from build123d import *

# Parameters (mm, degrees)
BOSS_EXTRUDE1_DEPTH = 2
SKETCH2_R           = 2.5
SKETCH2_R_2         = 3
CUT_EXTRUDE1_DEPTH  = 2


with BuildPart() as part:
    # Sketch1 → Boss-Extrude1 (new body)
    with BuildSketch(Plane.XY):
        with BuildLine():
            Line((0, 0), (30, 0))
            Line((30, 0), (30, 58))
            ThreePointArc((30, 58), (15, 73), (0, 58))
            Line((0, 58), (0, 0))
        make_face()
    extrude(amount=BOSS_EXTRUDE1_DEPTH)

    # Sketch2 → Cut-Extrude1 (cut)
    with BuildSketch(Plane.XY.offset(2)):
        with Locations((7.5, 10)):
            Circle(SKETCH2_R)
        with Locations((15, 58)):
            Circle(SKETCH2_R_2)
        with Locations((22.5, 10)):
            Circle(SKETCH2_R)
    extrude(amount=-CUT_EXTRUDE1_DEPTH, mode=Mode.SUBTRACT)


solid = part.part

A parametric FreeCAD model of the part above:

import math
import FreeCAD as App
import Part
import Sketcher
Q = App.Units.Quantity

doc = App.newDocument("Part")
body = doc.addObject("PartDesign::Body", "Body")

sketch1 = doc.addObject("Sketcher::SketchObject", "Sketch")
body.addObject(sketch1)
sketch1.AttachmentSupport = (doc.XY_Plane, [""])
sketch1.MapMode = "FlatFace"
sketch1.addGeometry([
    Part.LineSegment(App.Vector(0, 0, 0), App.Vector(30, 0, 0)),
    Part.LineSegment(App.Vector(30, 0, 0), App.Vector(30, 58, 0)),
    Part.ArcOfCircle(Part.Circle(App.Vector(15, 58, 0), App.Vector(0, 0, 1), 15), math.radians(0), math.radians(180)),
    Part.LineSegment(App.Vector(0, 58, 0), App.Vector(0, 0, 0)),
], False)
sketch1.addConstraint([
    Sketcher.Constraint("Coincident", 0, 2, 1, 1),
    Sketcher.Constraint("Tangent", 1, 2, 2, 1),
    Sketcher.Constraint("Tangent", 2, 2, 3, 1),
    Sketcher.Constraint("Coincident", 3, 2, 0, 1),
    Sketcher.Constraint("Horizontal", 0),
    Sketcher.Constraint("Vertical", 1),
    Sketcher.Constraint("Vertical", 3),
    Sketcher.Constraint("Coincident", 3, 2, -1, 1),
    Sketcher.Constraint("Radius", 2, Q("15 mm")),
    Sketcher.Constraint("DistanceY", 1, 1, 1, 2, Q("58 mm")),
])
pad1 = doc.addObject("PartDesign::Pad", "Pad")
body.addObject(pad1)
pad1.Profile = sketch1
pad1.Length = 2

sketch2 = doc.addObject("Sketcher::SketchObject", "Sketch001")
body.addObject(sketch2)
sketch2.AttachmentSupport = (doc.XY_Plane, [""])
sketch2.MapMode = "FlatFace"
sketch2.AttachmentOffset = App.Placement(App.Vector(0, 0, 2), App.Rotation())
sketch2.addGeometry([
    Part.Circle(App.Vector(7.5, 10, 0), App.Vector(0, 0, 1), 2.5),
    Part.Circle(App.Vector(15, 58, 0), App.Vector(0, 0, 1), 3),
    Part.Circle(App.Vector(22.5, 10, 0), App.Vector(0, 0, 1), 2.5),
], False)
sketch2.addConstraint([
    Sketcher.Constraint("Equal", 0, 2),
    Sketcher.Constraint("Horizontal", 0, 3, 2, 3),
    Sketcher.Constraint("Diameter", 0, Q("5 mm")),
    Sketcher.Constraint("Diameter", 1, Q("6 mm")),
    Sketcher.Constraint("DistanceY", -1, 1, 0, 3, Q("10 mm")),
    Sketcher.Constraint("DistanceX", -1, 1, 1, 3, Q("15 mm")),
    Sketcher.Constraint("DistanceY", -1, 1, 1, 3, Q("58 mm")),
    Sketcher.Constraint("DistanceX", 0, 3, 2, 3, Q("15 mm")),
    Sketcher.Constraint("DistanceX", -1, 1, 0, 3, Q("7.5 mm")),
])
pocket1 = doc.addObject("PartDesign::Pocket", "Pocket")
body.addObject(pocket1)
pocket1.Profile = sketch2
pocket1.Length = 2

doc.recompute()
